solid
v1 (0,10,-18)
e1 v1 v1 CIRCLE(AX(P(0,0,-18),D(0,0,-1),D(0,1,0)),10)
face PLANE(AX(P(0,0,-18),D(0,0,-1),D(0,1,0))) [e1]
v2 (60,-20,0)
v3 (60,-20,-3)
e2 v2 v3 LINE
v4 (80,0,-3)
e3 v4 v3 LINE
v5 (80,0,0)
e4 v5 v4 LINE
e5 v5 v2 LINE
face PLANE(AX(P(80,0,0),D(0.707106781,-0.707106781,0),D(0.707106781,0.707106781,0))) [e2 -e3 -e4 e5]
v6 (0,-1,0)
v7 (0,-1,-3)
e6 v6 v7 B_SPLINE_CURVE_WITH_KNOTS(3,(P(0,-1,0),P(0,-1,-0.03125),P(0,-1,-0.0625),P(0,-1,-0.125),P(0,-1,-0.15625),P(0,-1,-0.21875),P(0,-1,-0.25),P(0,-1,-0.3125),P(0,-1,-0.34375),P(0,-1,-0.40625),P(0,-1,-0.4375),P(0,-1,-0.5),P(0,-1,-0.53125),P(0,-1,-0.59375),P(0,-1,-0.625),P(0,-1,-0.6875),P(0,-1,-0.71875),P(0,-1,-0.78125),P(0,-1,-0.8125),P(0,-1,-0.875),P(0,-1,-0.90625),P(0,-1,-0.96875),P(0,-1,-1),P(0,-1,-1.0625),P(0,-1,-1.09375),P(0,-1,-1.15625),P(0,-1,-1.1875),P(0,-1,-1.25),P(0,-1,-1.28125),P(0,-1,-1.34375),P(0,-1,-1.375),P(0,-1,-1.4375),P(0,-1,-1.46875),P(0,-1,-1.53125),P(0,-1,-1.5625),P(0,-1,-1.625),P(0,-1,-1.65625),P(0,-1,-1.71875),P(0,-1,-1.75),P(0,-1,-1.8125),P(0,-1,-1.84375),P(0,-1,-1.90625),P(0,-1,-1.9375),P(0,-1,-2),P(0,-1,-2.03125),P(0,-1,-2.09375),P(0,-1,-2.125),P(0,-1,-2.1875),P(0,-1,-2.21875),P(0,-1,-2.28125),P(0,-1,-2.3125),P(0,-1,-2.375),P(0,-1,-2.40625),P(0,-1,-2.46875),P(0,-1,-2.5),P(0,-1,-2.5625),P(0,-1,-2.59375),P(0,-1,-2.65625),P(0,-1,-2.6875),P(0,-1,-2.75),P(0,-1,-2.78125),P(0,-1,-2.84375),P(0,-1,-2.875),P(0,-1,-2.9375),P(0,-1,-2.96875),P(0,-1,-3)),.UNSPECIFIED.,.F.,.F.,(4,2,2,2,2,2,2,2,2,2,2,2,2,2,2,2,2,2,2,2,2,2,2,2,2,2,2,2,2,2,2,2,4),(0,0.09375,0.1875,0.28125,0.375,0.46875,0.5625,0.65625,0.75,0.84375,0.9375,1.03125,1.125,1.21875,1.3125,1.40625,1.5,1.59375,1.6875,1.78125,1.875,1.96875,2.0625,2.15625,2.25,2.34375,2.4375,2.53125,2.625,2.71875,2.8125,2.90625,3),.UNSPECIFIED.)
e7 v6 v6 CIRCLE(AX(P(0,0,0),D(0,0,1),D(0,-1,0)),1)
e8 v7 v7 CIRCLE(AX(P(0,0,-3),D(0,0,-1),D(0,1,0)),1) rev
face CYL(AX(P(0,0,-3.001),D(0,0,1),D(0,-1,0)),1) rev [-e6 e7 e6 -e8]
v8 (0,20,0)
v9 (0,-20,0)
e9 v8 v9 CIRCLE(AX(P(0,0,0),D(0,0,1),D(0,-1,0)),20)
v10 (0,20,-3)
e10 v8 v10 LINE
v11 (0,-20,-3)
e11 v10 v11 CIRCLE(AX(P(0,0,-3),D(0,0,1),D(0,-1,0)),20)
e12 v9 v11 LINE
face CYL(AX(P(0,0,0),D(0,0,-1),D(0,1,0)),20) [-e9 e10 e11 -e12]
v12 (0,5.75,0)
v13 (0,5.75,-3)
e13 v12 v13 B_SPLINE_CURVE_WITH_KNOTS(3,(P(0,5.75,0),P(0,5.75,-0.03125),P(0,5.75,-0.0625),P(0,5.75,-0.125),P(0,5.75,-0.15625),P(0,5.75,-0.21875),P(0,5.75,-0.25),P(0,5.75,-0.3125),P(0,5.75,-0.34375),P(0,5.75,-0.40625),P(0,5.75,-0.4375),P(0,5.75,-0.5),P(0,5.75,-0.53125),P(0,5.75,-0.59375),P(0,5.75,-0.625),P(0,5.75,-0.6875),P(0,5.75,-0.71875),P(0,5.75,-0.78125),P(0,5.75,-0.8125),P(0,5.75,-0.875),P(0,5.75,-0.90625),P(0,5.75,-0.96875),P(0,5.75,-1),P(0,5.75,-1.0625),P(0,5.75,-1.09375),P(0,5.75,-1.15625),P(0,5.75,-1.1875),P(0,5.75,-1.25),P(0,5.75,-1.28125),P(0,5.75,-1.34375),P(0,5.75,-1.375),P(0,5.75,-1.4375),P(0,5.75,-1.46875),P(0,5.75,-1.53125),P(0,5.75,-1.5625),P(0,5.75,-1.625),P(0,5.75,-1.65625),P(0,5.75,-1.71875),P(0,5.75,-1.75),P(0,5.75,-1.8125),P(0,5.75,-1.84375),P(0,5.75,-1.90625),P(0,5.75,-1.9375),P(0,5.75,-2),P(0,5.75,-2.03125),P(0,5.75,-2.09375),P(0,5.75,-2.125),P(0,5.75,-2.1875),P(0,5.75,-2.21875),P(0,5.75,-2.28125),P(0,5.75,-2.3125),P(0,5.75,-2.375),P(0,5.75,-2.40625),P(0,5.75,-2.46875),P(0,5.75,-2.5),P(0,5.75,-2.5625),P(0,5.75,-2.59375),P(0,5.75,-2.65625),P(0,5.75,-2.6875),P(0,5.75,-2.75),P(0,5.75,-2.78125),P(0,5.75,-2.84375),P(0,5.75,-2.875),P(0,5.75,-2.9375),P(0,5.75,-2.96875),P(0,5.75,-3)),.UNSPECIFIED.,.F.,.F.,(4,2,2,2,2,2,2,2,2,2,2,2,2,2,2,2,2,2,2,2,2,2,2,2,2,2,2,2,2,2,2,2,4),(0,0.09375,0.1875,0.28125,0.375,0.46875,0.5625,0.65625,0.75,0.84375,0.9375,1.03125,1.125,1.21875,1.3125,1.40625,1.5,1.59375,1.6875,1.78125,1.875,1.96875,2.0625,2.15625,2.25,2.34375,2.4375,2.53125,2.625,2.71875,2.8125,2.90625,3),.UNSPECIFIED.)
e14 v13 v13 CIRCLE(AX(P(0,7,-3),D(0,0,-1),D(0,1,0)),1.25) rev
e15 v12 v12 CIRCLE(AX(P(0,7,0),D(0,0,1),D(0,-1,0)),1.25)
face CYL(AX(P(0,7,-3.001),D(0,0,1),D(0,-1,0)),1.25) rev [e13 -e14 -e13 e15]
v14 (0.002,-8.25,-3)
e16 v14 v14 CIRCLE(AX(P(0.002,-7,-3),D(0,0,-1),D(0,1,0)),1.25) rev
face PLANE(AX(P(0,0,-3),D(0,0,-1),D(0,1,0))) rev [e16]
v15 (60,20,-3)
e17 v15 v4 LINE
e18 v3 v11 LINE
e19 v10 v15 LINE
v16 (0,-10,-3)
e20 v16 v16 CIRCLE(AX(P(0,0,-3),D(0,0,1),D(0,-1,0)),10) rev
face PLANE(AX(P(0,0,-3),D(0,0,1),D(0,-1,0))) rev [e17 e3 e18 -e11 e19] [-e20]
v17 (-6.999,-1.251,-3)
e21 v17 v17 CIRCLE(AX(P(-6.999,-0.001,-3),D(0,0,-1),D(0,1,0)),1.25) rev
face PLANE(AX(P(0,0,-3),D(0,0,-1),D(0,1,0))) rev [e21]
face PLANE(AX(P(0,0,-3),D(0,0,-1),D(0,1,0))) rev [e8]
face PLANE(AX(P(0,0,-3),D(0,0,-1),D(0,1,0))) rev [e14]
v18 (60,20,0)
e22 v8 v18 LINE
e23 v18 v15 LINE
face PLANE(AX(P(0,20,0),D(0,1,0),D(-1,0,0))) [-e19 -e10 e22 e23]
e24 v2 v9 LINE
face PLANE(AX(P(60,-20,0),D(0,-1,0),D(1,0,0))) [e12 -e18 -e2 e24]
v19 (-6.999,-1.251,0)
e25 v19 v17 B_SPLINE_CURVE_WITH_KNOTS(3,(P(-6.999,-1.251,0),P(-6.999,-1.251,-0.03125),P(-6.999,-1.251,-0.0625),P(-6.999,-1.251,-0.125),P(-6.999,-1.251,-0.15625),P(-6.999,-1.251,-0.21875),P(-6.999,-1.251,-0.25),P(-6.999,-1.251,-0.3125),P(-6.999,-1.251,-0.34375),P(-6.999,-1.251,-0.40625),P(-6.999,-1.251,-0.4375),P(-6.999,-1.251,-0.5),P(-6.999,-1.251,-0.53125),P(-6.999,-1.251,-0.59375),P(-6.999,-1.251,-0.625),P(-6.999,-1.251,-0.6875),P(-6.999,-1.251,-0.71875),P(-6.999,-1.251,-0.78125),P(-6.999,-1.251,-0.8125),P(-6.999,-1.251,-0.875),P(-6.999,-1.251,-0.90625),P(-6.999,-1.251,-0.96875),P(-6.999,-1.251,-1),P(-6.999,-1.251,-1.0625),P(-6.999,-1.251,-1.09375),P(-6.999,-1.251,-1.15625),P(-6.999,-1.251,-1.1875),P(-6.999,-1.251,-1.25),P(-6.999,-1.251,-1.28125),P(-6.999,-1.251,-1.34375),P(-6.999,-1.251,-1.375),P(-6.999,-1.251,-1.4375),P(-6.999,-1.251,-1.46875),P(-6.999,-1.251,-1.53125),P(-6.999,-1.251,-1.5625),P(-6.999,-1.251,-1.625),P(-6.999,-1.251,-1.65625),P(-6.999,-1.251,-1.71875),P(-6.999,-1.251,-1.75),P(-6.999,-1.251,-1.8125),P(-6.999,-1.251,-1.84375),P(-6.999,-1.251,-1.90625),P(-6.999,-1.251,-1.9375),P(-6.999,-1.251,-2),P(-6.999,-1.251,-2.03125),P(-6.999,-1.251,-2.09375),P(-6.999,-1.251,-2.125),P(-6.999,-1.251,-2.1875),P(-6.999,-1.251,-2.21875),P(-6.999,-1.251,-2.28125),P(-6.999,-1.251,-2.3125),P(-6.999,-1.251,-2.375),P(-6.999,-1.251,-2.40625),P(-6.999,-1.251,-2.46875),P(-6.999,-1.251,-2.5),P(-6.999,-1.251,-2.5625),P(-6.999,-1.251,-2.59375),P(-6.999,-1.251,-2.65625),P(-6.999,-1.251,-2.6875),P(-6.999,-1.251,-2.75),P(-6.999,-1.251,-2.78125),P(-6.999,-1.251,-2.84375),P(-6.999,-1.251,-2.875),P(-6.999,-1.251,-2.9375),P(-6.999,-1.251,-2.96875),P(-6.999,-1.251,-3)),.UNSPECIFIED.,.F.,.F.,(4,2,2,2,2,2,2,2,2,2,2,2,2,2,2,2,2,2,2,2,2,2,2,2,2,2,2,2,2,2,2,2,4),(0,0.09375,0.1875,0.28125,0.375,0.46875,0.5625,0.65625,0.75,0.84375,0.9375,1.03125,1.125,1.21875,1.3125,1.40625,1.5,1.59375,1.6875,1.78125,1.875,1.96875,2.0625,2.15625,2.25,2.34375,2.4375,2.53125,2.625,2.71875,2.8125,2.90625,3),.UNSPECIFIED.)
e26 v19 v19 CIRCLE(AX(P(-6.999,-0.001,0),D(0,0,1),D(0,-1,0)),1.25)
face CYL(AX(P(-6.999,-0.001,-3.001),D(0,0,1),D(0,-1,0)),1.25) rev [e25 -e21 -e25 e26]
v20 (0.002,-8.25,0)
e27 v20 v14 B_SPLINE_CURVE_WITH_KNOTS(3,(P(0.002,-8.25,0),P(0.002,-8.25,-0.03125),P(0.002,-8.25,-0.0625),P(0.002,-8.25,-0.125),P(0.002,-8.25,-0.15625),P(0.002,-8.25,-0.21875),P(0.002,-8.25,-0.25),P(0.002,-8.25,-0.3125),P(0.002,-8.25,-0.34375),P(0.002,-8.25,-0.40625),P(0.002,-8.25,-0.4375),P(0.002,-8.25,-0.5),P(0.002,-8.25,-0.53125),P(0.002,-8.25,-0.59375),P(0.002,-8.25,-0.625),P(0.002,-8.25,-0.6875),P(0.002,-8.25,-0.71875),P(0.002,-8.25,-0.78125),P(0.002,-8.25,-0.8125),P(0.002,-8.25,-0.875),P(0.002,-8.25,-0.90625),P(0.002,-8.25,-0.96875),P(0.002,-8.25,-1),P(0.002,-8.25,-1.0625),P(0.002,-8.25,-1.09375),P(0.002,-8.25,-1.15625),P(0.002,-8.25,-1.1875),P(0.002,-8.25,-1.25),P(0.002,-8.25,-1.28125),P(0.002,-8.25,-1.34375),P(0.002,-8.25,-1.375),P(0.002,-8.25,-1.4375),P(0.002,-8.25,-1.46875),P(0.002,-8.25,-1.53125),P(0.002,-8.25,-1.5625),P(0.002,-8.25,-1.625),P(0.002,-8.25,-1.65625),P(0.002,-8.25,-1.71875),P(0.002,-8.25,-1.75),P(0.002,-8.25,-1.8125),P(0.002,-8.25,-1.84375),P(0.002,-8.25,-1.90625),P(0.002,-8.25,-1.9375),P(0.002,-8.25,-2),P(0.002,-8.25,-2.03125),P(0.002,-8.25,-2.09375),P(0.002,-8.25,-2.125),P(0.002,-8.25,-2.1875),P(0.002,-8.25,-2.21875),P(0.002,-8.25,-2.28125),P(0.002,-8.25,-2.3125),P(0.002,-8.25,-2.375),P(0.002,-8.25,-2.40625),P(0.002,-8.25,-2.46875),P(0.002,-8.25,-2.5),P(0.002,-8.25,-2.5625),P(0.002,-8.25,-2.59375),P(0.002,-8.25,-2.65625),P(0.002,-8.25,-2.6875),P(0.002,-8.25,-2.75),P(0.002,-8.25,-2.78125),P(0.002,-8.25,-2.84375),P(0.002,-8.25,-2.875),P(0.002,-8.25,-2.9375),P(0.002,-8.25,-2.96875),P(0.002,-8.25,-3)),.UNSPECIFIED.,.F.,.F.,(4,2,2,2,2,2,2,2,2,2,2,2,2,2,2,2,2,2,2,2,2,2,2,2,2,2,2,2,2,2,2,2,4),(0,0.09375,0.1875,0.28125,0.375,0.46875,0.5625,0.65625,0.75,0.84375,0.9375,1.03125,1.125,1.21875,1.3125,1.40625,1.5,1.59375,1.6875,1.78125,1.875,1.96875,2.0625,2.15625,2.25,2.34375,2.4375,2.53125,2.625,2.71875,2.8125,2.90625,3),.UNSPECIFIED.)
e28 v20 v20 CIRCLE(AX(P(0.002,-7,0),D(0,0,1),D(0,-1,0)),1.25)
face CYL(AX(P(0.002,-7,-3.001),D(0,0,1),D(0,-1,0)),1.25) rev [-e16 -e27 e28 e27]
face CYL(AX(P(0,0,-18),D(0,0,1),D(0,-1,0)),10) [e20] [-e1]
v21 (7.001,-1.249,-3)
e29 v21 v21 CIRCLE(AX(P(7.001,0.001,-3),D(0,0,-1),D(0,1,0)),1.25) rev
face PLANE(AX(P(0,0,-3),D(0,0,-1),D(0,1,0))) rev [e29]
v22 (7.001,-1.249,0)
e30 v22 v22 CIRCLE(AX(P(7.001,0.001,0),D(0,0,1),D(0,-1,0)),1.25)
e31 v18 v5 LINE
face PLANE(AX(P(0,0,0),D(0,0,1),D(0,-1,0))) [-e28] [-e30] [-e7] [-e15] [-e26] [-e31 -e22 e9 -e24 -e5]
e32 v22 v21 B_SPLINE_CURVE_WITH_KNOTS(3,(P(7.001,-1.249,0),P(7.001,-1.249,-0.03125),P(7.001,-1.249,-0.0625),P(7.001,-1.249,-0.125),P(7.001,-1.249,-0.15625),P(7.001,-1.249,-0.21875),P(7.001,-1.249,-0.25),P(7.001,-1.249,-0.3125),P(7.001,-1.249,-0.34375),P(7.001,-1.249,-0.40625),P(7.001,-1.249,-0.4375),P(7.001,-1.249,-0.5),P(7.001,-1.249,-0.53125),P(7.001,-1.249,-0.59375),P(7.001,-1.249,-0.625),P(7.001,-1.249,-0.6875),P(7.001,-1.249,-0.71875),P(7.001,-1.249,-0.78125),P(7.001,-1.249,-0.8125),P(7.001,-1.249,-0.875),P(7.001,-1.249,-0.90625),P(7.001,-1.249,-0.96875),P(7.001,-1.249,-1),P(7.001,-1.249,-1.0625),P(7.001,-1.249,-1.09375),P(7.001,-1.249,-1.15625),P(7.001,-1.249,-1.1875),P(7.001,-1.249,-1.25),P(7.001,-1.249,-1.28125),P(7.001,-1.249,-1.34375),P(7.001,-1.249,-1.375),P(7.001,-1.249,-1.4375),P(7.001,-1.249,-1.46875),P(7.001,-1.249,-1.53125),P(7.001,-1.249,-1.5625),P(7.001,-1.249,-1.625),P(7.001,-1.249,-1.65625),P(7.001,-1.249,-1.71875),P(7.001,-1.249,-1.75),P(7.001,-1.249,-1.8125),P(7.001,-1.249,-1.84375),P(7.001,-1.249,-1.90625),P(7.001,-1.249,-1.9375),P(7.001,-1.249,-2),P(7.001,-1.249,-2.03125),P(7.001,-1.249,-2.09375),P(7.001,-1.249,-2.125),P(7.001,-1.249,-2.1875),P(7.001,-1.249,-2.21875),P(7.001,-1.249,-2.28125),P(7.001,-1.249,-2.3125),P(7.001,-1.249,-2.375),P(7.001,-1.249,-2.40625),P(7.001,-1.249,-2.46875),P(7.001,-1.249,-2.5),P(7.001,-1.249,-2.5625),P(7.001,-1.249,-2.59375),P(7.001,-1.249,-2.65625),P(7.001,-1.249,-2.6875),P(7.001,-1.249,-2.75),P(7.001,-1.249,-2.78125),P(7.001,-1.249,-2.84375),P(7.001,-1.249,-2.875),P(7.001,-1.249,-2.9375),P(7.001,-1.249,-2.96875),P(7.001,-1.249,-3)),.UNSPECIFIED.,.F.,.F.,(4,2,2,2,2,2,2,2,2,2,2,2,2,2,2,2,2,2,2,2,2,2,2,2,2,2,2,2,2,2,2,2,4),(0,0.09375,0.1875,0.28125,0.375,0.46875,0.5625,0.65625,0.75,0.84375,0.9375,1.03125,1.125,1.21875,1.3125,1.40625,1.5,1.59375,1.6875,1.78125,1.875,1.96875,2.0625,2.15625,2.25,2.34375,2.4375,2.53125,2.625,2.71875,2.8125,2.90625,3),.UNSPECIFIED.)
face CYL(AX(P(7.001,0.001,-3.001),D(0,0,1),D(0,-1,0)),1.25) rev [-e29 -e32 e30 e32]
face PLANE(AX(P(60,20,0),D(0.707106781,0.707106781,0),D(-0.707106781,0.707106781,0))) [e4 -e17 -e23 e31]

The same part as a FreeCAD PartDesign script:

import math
import FreeCAD as App
import Part
import Sketcher

V = App.Vector
Q = App.Units.Quantity

doc = App.newDocument("Part")
body = doc.addObject("PartDesign::Body", "Body")

# Sketch on XZ plane
sketch1 = doc.addObject("Sketcher::SketchObject", "Sketch")
body.addObject(sketch1)
sketch1.AttachmentSupport = (doc.XZ_Plane, [""])
sketch1.MapMode = "FlatFace"
sketch1.addGeometry([
    Part.LineSegment(V(0, 20, 0), V(60, 20, 0)),  # 0
    Part.LineSegment(V(60, 20, 0), V(80, 0, 0)),  # 1
    Part.LineSegment(V(80, 0, 0), V(60, -20, 0)),  # 2
    Part.LineSegment(V(60, -20, 0), V(0, -20, 0)),  # 3
    Part.ArcOfCircle(Part.Circle(V(0, 0, 0), V(0, 0, 1), 20), math.radians(90), math.radians(270)),  # 4
], False)
sketch1.addConstraint([
    Sketcher.Constraint("Coincident", 0, 2, 1, 1),
    Sketcher.Constraint("Coincident", 1, 2, 2, 1),
    Sketcher.Constraint("Coincident", 2, 2, 3, 1),
    Sketcher.Constraint("Tangent", 3, 2, 4, 2),
    Sketcher.Constraint("Tangent", 4, 1, 0, 1),
    Sketcher.Constraint("Horizontal", 0),
    Sketcher.Constraint("Horizontal", 3),
    Sketcher.Constraint("Coincident", 4, 3, -1, 1),
    Sketcher.Constraint("PointOnObject", 1, 2, -1),
    Sketcher.Constraint("Perpendicular", 1, 2),
    Sketcher.Constraint("Vertical", 0, 2, 2, 2),
    Sketcher.Constraint("Radius", 4, Q("20 mm")),
    Sketcher.Constraint("DistanceX", 0, 1, 0, 2, Q("60 mm")),
])
pad1 = doc.addObject("PartDesign::Pad", "Pad")
body.addObject(pad1)
pad1.Profile = sketch1
pad1.Length = 3
pad1.Reversed = True

# Sketch on XZ plane
sketch2 = doc.addObject("Sketcher::SketchObject", "Sketch001")
body.addObject(sketch2)
sketch2.AttachmentSupport = (doc.XZ_Plane, [""])
sketch2.MapMode = "FlatFace"
sketch2.AttachmentOffset = App.Placement(V(0, 0, -3), App.Rotation())
sketch2.addGeometry(Part.Circle(V(0, 0, 0), V(0, 0, 1), 1), False)
sketch2.addConstraint([
    Sketcher.Constraint("Coincident", 0, 3, -1, 1),
    Sketcher.Constraint("Diameter", 0, Q("2 mm")),
])
pocket1 = doc.addObject("PartDesign::Pocket", "Pocket")
body.addObject(pocket1)
pocket1.Profile = sketch2
pocket1.Type = "UpToFirst"
pocket1.Reversed = True

# Sketch on XZ plane
sketch3 = doc.addObject("Sketcher::SketchObject", "Sketch002")
body.addObject(sketch3)
sketch3.AttachmentSupport = (doc.XZ_Plane, [""])
sketch3.MapMode = "FlatFace"
sketch3.AttachmentOffset = App.Placement(V(0, 0, -3), App.Rotation())
sketch3.addGeometry(Part.Circle(V(0, -7, 0), V(0, 0, 1), 1.2), False)
sketch3.addConstraint([
    Sketcher.Constraint("PointOnObject", 0, 3, -2),
    Sketcher.Constraint("Diameter", 0, Q("2.5 mm")),
    Sketcher.Constraint("DistanceY", 0, 3, -1, 1, Q("7 mm")),
])
pocket2 = doc.addObject("PartDesign::Pocket", "Pocket001")
body.addObject(pocket2)
pocket2.Profile = sketch3
pocket2.Type = "UpToFirst"
pocket2.Reversed = True

# Sketch on XZ plane
sketch4 = doc.addObject("Sketcher::SketchObject", "Sketch003")
body.addObject(sketch4)
sketch4.AttachmentSupport = (doc.XZ_Plane, [""])
sketch4.MapMode = "FlatFace"
sketch4.AttachmentOffset = App.Placement(V(0, 0, -3), App.Rotation())
sketch4.addGeometry(Part.Circle(V(7, 0, 0), V(0, 0, 1), 1.2), False)
sketch4.addConstraint([
    Sketcher.Constraint("Diameter", 0, Q("2.5 mm")),
    Sketcher.Constraint("DistanceX", -1, 1, 0, 3, Q("7.001 mm")),
    Sketcher.Constraint("DistanceY", 0, 3, -1, 1, Q("0.001 mm")),
])
pocket3 = doc.addObject("PartDesign::Pocket", "Pocket002")
body.addObject(pocket3)
pocket3.Profile = sketch4
pocket3.Type = "UpToFirst"
pocket3.Reversed = True

# Sketch on XZ plane
sketch5 = doc.addObject("Sketcher::SketchObject", "Sketch004")
body.addObject(sketch5)
sketch5.AttachmentSupport = (doc.XZ_Plane, [""])
sketch5.MapMode = "FlatFace"
sketch5.AttachmentOffset = App.Placement(V(0, 0, -3), App.Rotation())
sketch5.addGeometry(Part.Circle(V(0, 7, 0), V(0, 0, 1), 1.2), False)
sketch5.addConstraint([
    Sketcher.Constraint("Diameter", 0, Q("2.5 mm")),
    Sketcher.Constraint("DistanceY", -1, 1, 0, 3, Q("7 mm")),
    Sketcher.Constraint("DistanceX", -1, 1, 0, 3, Q("0.002 mm")),
])
pocket4 = doc.addObject("PartDesign::Pocket", "Pocket003")
body.addObject(pocket4)
pocket4.Profile = sketch5
pocket4.Type = "UpToFirst"
pocket4.Reversed = True

# Sketch on XZ plane
sketch6 = doc.addObject("Sketcher::SketchObject", "Sketch005")
body.addObject(sketch6)
sketch6.AttachmentSupport = (doc.XZ_Plane, [""])
sketch6.MapMode = "FlatFace"
sketch6.AttachmentOffset = App.Placement(V(0, 0, -3), App.Rotation())
sketch6.addGeometry(Part.Circle(V(-7, 0, 0), V(0, 0, 1), 1.2), False)
sketch6.addConstraint([
    Sketcher.Constraint("Diameter", 0, Q("2.5 mm")),
    Sketcher.Constraint("DistanceX", 0, 3, -1, 1, Q("6.999 mm")),
    Sketcher.Constraint("DistanceY", -1, 1, 0, 3, Q("0.001 mm")),
])
pocket5 = doc.addObject("PartDesign::Pocket", "Pocket004")
body.addObject(pocket5)
pocket5.Profile = sketch6
pocket5.Type = "UpToFirst"
pocket5.Reversed = True

# Sketch on XZ plane
sketch7 = doc.addObject("Sketcher::SketchObject", "Sketch006")
body.addObject(sketch7)
sketch7.AttachmentSupport = (doc.XZ_Plane, [""])
sketch7.MapMode = "FlatFace"
sketch7.addGeometry(Part.Circle(V(0, 0, 0), V(0, 0, 1), 10), False)
sketch7.addConstraint([
    Sketcher.Constraint("Coincident", 0, 3, -1, 1),
    Sketcher.Constraint("Diameter", 0, Q("20 mm")),
])
pad2 = doc.addObject("PartDesign::Pad", "Pad001")
body.addObject(pad2)
pad2.Profile = sketch7
pad2.Length = 15
body2 = doc.addObject("PartDesign::Body", "Body001")
doc.recompute()

body.Placement = App.Placement(V(0, 0, 0), App.Rotation(V(1, 0, 0), 90))
boolean = doc.addObject("PartDesign::Boolean", "Boolean")
body2.addObject(boolean)
boolean.Type = "Fuse"
boolean.addObjects([body])
body3 = doc.addObject("PartDesign::Body", "Body002")
doc.recompute()

body2.Placement = App.Placement(V(0, 0, -3), App.Rotation(V(0, 0, 1), 0))
boolean2 = doc.addObject("PartDesign::Boolean", "Boolean001")
body3.addObject(boolean2)
boolean2.Type = "Fuse"
boolean2.addObjects([body2])

doc.recompute()
